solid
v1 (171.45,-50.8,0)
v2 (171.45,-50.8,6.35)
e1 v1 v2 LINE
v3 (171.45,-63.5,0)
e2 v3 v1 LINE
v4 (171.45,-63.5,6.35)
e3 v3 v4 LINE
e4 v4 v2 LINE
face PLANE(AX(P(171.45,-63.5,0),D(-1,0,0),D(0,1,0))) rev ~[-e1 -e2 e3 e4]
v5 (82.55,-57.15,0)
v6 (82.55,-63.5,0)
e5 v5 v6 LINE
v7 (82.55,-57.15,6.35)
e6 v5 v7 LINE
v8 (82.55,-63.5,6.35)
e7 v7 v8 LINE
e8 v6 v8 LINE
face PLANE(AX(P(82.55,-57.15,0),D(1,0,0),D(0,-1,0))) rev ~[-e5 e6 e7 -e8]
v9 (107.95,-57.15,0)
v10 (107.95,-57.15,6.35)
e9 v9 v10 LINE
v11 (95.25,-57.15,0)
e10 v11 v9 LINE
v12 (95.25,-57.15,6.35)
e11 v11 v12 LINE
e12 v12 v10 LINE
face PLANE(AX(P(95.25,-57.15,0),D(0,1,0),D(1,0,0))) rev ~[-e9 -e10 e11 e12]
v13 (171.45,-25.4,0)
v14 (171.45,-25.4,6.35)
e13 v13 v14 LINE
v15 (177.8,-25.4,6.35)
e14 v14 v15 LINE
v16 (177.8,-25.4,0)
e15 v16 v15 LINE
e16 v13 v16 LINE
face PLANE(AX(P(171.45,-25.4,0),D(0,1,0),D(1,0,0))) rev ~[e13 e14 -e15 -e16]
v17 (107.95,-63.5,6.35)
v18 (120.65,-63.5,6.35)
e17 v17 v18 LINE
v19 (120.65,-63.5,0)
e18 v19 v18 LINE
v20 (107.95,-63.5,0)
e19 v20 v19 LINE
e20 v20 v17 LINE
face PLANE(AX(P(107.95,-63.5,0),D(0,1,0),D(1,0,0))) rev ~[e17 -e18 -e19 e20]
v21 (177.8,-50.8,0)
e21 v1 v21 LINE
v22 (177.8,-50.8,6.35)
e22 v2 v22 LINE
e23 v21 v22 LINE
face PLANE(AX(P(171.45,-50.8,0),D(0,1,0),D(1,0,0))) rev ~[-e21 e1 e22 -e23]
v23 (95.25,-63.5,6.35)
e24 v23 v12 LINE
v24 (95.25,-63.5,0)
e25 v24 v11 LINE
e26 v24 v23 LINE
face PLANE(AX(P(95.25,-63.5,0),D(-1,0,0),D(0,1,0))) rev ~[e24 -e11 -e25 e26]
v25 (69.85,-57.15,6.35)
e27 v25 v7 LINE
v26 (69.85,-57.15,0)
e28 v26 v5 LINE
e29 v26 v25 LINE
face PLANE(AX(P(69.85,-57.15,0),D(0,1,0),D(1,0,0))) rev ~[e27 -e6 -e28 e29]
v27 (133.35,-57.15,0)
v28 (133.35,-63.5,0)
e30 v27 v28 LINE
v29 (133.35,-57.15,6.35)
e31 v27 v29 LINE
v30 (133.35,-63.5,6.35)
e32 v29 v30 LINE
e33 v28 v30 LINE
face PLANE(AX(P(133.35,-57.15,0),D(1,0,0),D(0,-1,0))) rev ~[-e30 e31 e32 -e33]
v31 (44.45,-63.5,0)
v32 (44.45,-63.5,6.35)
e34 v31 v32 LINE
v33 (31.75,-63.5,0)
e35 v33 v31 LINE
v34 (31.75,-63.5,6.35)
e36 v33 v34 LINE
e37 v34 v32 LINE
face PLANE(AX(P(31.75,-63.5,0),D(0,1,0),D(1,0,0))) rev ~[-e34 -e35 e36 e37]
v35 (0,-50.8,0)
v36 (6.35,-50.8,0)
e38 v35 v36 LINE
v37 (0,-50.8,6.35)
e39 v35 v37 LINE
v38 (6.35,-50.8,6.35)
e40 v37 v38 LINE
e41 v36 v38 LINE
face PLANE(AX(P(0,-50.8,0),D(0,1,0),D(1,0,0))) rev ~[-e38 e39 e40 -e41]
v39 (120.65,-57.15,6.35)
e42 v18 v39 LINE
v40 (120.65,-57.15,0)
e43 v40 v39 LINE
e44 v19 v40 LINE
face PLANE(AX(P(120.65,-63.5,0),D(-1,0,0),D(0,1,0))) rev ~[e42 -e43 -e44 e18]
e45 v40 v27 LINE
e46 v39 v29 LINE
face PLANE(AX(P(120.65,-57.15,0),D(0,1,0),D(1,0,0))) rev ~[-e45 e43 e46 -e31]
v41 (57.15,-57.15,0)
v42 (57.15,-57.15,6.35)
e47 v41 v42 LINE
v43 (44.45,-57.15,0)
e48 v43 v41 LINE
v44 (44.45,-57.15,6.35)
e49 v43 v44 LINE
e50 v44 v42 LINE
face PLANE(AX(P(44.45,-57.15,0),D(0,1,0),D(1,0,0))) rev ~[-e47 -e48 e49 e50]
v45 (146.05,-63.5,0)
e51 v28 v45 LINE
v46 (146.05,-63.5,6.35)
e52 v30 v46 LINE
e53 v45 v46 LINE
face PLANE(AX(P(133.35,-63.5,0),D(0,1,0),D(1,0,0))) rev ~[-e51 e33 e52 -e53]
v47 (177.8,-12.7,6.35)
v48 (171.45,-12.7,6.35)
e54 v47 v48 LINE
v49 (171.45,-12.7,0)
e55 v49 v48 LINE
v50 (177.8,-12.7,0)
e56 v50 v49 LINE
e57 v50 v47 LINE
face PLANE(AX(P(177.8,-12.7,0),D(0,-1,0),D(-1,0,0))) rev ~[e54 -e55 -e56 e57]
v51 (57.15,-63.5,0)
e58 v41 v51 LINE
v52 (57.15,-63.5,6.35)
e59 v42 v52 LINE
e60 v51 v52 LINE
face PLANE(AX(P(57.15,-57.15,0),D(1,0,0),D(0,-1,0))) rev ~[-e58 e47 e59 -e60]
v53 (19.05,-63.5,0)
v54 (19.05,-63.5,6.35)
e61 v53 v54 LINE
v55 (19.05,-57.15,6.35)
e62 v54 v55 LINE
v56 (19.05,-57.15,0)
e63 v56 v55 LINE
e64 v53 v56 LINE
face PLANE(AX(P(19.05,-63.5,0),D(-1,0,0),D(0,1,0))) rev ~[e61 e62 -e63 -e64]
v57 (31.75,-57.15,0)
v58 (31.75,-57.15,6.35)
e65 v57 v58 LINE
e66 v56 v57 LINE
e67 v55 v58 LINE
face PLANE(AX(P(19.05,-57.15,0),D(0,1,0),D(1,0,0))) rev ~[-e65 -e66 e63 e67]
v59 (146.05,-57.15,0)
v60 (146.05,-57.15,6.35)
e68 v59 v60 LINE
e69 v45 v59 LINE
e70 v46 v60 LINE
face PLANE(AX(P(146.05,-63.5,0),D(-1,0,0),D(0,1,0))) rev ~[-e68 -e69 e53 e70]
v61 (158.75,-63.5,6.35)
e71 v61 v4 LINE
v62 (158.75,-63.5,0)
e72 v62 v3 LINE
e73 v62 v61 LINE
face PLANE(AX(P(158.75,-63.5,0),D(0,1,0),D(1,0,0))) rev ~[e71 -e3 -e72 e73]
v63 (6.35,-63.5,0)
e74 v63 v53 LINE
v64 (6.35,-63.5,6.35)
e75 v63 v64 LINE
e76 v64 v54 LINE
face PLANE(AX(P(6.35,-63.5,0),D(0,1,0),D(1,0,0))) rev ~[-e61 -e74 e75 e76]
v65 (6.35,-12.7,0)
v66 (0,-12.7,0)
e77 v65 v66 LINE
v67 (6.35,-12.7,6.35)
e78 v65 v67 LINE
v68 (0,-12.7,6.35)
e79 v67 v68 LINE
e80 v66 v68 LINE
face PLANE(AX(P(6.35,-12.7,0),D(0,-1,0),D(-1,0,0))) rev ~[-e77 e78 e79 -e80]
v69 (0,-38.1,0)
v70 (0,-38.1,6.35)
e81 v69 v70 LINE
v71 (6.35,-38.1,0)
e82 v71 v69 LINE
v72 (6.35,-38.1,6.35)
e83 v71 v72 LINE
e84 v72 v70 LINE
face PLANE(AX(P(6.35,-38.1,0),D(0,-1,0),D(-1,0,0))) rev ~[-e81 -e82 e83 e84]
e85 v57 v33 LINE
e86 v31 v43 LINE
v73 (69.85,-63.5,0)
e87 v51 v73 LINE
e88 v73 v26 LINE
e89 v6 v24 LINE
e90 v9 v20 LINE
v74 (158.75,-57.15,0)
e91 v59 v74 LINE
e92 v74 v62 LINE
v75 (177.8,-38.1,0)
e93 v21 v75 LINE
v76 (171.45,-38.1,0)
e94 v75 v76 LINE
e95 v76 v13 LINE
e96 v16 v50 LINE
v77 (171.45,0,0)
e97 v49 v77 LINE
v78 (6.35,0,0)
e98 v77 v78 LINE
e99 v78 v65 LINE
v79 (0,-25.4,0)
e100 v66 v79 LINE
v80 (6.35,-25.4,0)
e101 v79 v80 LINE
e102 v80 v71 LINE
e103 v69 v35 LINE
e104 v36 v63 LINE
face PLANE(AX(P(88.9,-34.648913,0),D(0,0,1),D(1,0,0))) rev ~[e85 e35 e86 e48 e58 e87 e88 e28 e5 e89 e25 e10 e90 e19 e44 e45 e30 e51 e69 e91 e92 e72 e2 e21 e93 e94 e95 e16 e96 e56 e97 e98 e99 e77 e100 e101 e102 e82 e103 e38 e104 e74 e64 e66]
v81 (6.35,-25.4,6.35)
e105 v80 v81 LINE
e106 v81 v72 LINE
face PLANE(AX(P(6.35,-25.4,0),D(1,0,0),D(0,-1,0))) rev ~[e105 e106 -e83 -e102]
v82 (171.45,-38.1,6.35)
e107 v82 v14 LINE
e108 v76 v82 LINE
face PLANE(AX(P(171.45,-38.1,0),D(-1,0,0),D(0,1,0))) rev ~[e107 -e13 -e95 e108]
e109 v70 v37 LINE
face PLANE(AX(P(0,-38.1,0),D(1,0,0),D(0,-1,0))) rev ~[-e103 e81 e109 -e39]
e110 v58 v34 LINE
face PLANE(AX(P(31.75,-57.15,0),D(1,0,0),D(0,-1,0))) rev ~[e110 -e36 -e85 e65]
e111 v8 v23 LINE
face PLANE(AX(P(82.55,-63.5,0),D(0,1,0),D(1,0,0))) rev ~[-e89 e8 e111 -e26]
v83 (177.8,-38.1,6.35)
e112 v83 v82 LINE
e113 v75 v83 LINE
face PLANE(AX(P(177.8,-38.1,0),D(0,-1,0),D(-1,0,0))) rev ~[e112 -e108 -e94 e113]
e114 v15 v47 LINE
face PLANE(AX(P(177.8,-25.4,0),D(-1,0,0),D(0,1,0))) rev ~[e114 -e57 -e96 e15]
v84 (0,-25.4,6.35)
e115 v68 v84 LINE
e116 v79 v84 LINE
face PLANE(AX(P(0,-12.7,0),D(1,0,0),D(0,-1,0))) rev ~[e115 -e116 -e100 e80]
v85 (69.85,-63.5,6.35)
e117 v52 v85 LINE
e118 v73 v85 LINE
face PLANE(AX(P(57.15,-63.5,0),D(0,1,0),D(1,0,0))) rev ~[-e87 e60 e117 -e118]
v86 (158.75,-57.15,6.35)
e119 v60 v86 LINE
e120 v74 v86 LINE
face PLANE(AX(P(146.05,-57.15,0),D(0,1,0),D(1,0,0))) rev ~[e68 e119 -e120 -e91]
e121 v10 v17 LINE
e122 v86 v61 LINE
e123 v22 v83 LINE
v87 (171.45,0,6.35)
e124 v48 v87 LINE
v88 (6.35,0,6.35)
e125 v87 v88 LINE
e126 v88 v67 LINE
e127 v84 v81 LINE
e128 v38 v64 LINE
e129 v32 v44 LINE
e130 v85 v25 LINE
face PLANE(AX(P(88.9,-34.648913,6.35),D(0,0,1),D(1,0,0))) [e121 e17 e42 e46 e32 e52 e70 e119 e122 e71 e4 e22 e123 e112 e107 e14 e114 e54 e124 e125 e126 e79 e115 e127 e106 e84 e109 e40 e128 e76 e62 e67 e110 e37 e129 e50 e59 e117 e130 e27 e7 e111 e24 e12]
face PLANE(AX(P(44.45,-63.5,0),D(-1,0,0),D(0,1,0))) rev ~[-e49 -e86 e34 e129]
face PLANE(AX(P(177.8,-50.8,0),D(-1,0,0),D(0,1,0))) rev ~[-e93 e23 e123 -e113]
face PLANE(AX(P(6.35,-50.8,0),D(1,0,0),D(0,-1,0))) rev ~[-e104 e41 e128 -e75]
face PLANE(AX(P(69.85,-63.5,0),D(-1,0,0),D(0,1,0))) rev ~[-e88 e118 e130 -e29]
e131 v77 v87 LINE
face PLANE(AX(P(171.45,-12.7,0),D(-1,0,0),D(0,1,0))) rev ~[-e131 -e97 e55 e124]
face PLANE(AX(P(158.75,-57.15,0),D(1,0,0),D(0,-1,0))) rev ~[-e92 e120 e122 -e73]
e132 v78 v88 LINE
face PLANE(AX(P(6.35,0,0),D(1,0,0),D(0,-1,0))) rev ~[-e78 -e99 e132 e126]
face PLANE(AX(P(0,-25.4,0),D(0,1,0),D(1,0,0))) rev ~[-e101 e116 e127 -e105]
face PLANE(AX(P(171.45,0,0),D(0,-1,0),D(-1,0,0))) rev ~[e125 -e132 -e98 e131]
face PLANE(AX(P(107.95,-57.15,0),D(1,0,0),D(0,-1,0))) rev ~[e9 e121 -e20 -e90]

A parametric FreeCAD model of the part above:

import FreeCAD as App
import Part
import Sketcher
from FreeCAD import Vector
Q = App.Units.Quantity


def add_polygon(sketch, points):
    """Adds a closed chain of lines whose ends are joined by coincident constraints."""
    first, n = sketch.GeometryCount, len(points)
    for a, b in zip(points, points[1:] + points[:1]):
        sketch.addGeometry(Part.LineSegment(App.Vector(*a, 0), App.Vector(*b, 0)), False)
    for i in range(n):
        sketch.addConstraint(Sketcher.Constraint("Coincident", first + i, 2, first + (i + 1) % n, 1))

doc = App.newDocument("Part")
body = doc.addObject("PartDesign::Body", "Body")

# Sketch on XY plane
sketch1 = doc.addObject("Sketcher::SketchObject", "Sketch")
body.addObject(sketch1)
sketch1.AttachmentSupport = (doc.XY_Plane, [""])
sketch1.MapMode = "FlatFace"
add_polygon(sketch1, [(171, 0), (6, 0), (6, -13), (0, -13), (0, -25), (6, -25), (6, -38), (0, -38), (0, -51), (6, -51), (6, -64), (19, -64), (19, -57), (32, -57), (32, -64), (44, -64), (44, -57), (57, -57), (57, -64), (70, -64), (70, -57), (83, -57), (83, -64), (95, -64), (95, -57), (108, -57), (108, -64), (121, -64), (121, -57), (133, -57), (133, -64), (146, -64), (146, -57), (159, -57), (159, -64), (171, -64), (171, -51), (178, -51), (178, -38), (171, -38), (171, -25), (178, -25), (178, -13), (171, -13)])  # lines 0-43
sketch1.addConstraint(Sketcher.Constraint("Horizontal", 0))
sketch1.addConstraint(Sketcher.Constraint("Vertical", 1))
sketch1.addConstraint(Sketcher.Constraint("Horizontal", 2))
sketch1.addConstraint(Sketcher.Constraint("Vertical", 3))
sketch1.addConstraint(Sketcher.Constraint("Horizontal", 4))
sketch1.addConstraint(Sketcher.Constraint("Vertical", 5))
sketch1.addConstraint(Sketcher.Constraint("Horizontal", 6))
sketch1.addConstraint(Sketcher.Constraint("Vertical", 7))
sketch1.addConstraint(Sketcher.Constraint("Horizontal", 8))
sketch1.addConstraint(Sketcher.Constraint("Vertical", 9))
sketch1.addConstraint(Sketcher.Constraint("Horizontal", 10))
sketch1.addConstraint(Sketcher.Constraint("Vertical", 11))
sketch1.addConstraint(Sketcher.Constraint("Horizontal", 12))
sketch1.addConstraint(Sketcher.Constraint("Vertical", 13))
sketch1.addConstraint(Sketcher.Constraint("Horizontal", 14))
sketch1.addConstraint(Sketcher.Constraint("Vertical", 15))
sketch1.addConstraint(Sketcher.Constraint("Horizontal", 16))
sketch1.addConstraint(Sketcher.Constraint("Vertical", 17))
sketch1.addConstraint(Sketcher.Constraint("Horizontal", 18))
sketch1.addConstraint(Sketcher.Constraint("Vertical", 19))
sketch1.addConstraint(Sketcher.Constraint("Horizontal", 20))
sketch1.addConstraint(Sketcher.Constraint("Vertical", 21))
sketch1.addConstraint(Sketcher.Constraint("Horizontal", 22))
sketch1.addConstraint(Sketcher.Constraint("Vertical", 23))
sketch1.addConstraint(Sketcher.Constraint("Horizontal", 24))
sketch1.addConstraint(Sketcher.Constraint("Vertical", 25))
sketch1.addConstraint(Sketcher.Constraint("Horizontal", 26))
sketch1.addConstraint(Sketcher.Constraint("Vertical", 27))
sketch1.addConstraint(Sketcher.Constraint("Horizontal", 28))
sketch1.addConstraint(Sketcher.Constraint("Vertical", 29))
sketch1.addConstraint(Sketcher.Constraint("Horizontal", 30))
sketch1.addConstraint(Sketcher.Constraint("Vertical", 31))
sketch1.addConstraint(Sketcher.Constraint("Horizontal", 32))
sketch1.addConstraint(Sketcher.Constraint("Vertical", 33))
sketch1.addConstraint(Sketcher.Constraint("Horizontal", 34))
sketch1.addConstraint(Sketcher.Constraint("Vertical", 35))
sketch1.addConstraint(Sketcher.Constraint("Horizontal", 36))
sketch1.addConstraint(Sketcher.Constraint("Vertical", 37))
sketch1.addConstraint(Sketcher.Constraint("Horizontal", 38))
sketch1.addConstraint(Sketcher.Constraint("Vertical", 39))
sketch1.addConstraint(Sketcher.Constraint("Horizontal", 40))
sketch1.addConstraint(Sketcher.Constraint("Vertical", 41))
sketch1.addConstraint(Sketcher.Constraint("Horizontal", 42))
sketch1.addConstraint(Sketcher.Constraint("Vertical", 43))
sketch1.addConstraint(Sketcher.Constraint("PointOnObject", 0, 2, -1))
sketch1.addConstraint(Sketcher.Constraint("PointOnObject", 2, 2, -2))
sketch1.addConstraint(Sketcher.Constraint("PointOnObject", 6, 2, -2))
sketch1.addConstraint(Sketcher.Constraint("Horizontal", 10, 2, 13, 2))
sketch1.addConstraint(Sketcher.Constraint("Horizontal", 12, 2, 15, 2))
sketch1.addConstraint(Sketcher.Constraint("Horizontal", 14, 2, 17, 2))
sketch1.addConstraint(Sketcher.Constraint("Horizontal", 16, 2, 19, 2))
sketch1.addConstraint(Sketcher.Constraint("Horizontal", 18, 2, 21, 2))
sketch1.addConstraint(Sketcher.Constraint("Horizontal", 20, 2, 23, 2))
sketch1.addConstraint(Sketcher.Constraint("Horizontal", 22, 2, 25, 2))
sketch1.addConstraint(Sketcher.Constraint("Horizontal", 24, 2, 27, 2))
sketch1.addConstraint(Sketcher.Constraint("Horizontal", 26, 2, 29, 2))
sketch1.addConstraint(Sketcher.Constraint("Horizontal", 28, 2, 31, 2))
sketch1.addConstraint(Sketcher.Constraint("Horizontal", 30, 2, 33, 2))
sketch1.addConstraint(Sketcher.Constraint("Horizontal", 8, 2, 35, 2))
sketch1.addConstraint(Sketcher.Constraint("Horizontal", 6, 2, 37, 2))
sketch1.addConstraint(Sketcher.Constraint("Horizontal", 4, 2, 39, 2))
sketch1.addConstraint(Sketcher.Constraint("Horizontal", 2, 2, 41, 2))
sketch1.addConstraint(Sketcher.Constraint("Vertical", 1, 2, 4, 2))
sketch1.addConstraint(Sketcher.Constraint("Vertical", 5, 2, 8, 2))
sketch1.addConstraint(Sketcher.Constraint("Vertical", 35, 2, 38, 2))
sketch1.addConstraint(Sketcher.Constraint("Vertical", 37, 2, 40, 2))
sketch1.addConstraint(Sketcher.Constraint("Vertical", 39, 2, 42, 2))
sketch1.addConstraint(Sketcher.Constraint("Equal", 10, 12))
sketch1.addConstraint(Sketcher.Constraint("Equal", 12, 14))
sketch1.addConstraint(Sketcher.Constraint("Equal", 14, 16))
sketch1.addConstraint(Sketcher.Constraint("Equal", 16, 18))
sketch1.addConstraint(Sketcher.Constraint("Equal", 18, 20))
sketch1.addConstraint(Sketcher.Constraint("Equal", 20, 22))
sketch1.addConstraint(Sketcher.Constraint("Equal", 22, 24))
sketch1.addConstraint(Sketcher.Constraint("Equal", 24, 26))
sketch1.addConstraint(Sketcher.Constraint("Equal", 26, 28))
sketch1.addConstraint(Sketcher.Constraint("Equal", 28, 30))
sketch1.addConstraint(Sketcher.Constraint("Equal", 30, 32))
sketch1.addConstraint(Sketcher.Constraint("Equal", 32, 34))
sketch1.addConstraint(Sketcher.Constraint("Equal", 8, 36))
sketch1.addConstraint(Sketcher.Constraint("Equal", 34, 1))
sketch1.addConstraint(Sketcher.Constraint("Equal", 1, 3))
sketch1.addConstraint(Sketcher.Constraint("Equal", 3, 5))
sketch1.addConstraint(Sketcher.Constraint("Equal", 5, 7))
sketch1.addConstraint(Sketcher.Constraint("Equal", 7, 9))
sketch1.addConstraint(Sketcher.Constraint("Equal", 42, 11))
sketch1.addConstraint(Sketcher.Constraint("DistanceX", 0, 2, 0, 1, Q("6.5 in")))
sketch1.addConstraint(Sketcher.Constraint("DistanceX", -1, 1, 36, 2, Q("7 in")))
pad1 = doc.addObject("PartDesign::Pad", "Pad")
body.addObject(pad1)
pad1.Profile = sketch1
pad1.Length = Q("0.25 in")

doc.recompute()
